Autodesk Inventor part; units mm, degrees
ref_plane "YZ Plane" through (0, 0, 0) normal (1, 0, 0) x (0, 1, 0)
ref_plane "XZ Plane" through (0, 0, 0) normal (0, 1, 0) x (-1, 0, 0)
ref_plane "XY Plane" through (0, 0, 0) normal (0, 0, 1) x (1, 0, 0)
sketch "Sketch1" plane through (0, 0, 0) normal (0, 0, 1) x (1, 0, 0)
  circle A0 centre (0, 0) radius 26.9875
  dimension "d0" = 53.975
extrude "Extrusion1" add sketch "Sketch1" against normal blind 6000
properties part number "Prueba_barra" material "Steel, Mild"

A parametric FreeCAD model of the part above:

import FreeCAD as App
import Part
import Sketcher
Q = App.Units.Quantity

doc = App.newDocument("Part")
body = doc.addObject("PartDesign::Body", "Body")

# Sketch on XY plane
sketch1 = body.newObject("Sketcher::SketchObject", "Sketch")
sketch1.AttachmentSupport = (doc.getObject("XY_Plane"), [""])
sketch1.MapMode = "FlatFace"
sketch1.addGeometry(Part.Circle(App.Vector(0, 0, 0), App.Vector(0, 0, 1), 27), False)
sketch1.addConstraint([
    Sketcher.Constraint("Coincident", 0, 3, -1, 1),
    Sketcher.Constraint("Diameter", 0, Q("53.975 mm")),
])
pad1 = body.newObject("PartDesign::Pad", "Pad")
pad1.Profile = sketch1
pad1.Length = 6000
pad1.Reversed = True

doc.recompute()
